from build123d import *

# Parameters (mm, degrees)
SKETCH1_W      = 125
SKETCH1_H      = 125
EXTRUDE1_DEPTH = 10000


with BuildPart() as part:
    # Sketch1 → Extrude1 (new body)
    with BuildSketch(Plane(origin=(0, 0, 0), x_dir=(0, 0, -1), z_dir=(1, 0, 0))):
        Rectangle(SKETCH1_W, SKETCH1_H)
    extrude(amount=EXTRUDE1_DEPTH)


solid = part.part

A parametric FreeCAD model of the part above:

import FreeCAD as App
import Part
import Sketcher

V = App.Vector

doc = App.newDocument("Part")
body = doc.addObject("PartDesign::Body", "Body")

# Sketch on YZ plane
sketch1 = body.newObject("Sketcher::SketchObject", "Sketch")
sketch1.AttachmentSupport = (doc.getObject("YZ_Plane"), [""])
sketch1.MapMode = "FlatFace"
sketch1.addGeometry([
    Part.LineSegment(V(62.5, 62.5, 0), V(-62.5, 62.5, 0)),
    Part.LineSegment(V(-62.5, 62.5, 0), V(-62.5, -62.5, 0)),
    Part.LineSegment(V(-62.5, -62.5, 0), V(62.5, -62.5, 0)),
    Part.LineSegment(V(62.5, -62.5, 0), V(62.5, 62.5, 0)),
], False)
sketch1.addConstraint([
    Sketcher.Constraint("Coincident", 0, 2, 1, 1),
    Sketcher.Constraint("Coincident", 1, 2, 2, 1),
    Sketcher.Constraint("Coincident", 2, 2, 3, 1),
    Sketcher.Constraint("Coincident", 3, 2, 0, 1),
    Sketcher.Constraint("Horizontal", 0),
    Sketcher.Constraint("Vertical", 1),
    Sketcher.Constraint("Horizontal", 2),
    Sketcher.Constraint("Vertical", 3),
    Sketcher.Constraint("Symmetric", 0, 2, 2, 2, -1, 1),
    Sketcher.Constraint("Equal", 2, 1),
    Sketcher.Constraint("DistanceX", 0, 2, 0, 1, 125.0),
])
pad1 = body.newObject("PartDesign::Pad", "Pad")
pad1.Profile = sketch1
pad1.Length = 10000

doc.recompute()
